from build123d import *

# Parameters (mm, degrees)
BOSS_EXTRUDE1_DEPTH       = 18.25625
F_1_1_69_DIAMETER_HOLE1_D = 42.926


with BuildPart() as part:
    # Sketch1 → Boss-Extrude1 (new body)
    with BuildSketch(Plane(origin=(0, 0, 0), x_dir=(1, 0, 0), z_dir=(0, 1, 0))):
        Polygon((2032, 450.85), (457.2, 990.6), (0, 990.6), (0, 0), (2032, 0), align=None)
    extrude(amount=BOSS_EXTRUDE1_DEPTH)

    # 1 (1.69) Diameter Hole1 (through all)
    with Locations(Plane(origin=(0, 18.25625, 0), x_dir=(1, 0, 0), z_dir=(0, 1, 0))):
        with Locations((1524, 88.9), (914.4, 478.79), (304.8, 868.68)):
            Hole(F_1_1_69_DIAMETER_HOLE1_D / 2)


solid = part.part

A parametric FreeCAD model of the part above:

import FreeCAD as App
import Part
import Sketcher
from FreeCAD import Vector
Q = App.Units.Quantity


def add_polygon(sketch, points):
    """Adds a closed chain of lines whose ends are joined by coincident constraints."""
    first, n = sketch.GeometryCount, len(points)
    for a, b in zip(points, points[1:] + points[:1]):
        sketch.addGeometry(Part.LineSegment(App.Vector(*a, 0), App.Vector(*b, 0)), False)
    for i in range(n):
        sketch.addConstraint(Sketcher.Constraint("Coincident", first + i, 2, first + (i + 1) % n, 1))

doc = App.newDocument("Part")
body = doc.addObject("PartDesign::Body", "Body")

# Sketch on XZ plane
sketch1 = body.newObject("Sketcher::SketchObject", "Sketch")
sketch1.AttachmentSupport = (doc.getObject("XZ_Plane"), [""])
sketch1.MapMode = "FlatFace"
add_polygon(sketch1, [(2032, -451), (457, -991), (0, -991), (0, 0), (2032, 0)])  # lines 0-4
sketch1.addConstraint([
    Sketcher.Constraint("Horizontal", 1),
    Sketcher.Constraint("Vertical", 2),
    Sketcher.Constraint("Horizontal", 3),
    Sketcher.Constraint("Vertical", 4),
    Sketcher.Constraint("Coincident", 2, 2, -1, 1),
    Sketcher.Constraint("DistanceX", 1, 2, 1, 1, Q("18 in")),
    Sketcher.Constraint("DistanceX", 3, 1, 3, 2, Q("80 in")),
    Sketcher.Constraint("DistanceY", 2, 1, 2, 2, Q("39 in")),
    Sketcher.Constraint("DistanceY", 4, 2, 4, 1, Q("17.75 in")),
])
pad1 = body.newObject("PartDesign::Pad", "Pad")
pad1.Profile = sketch1
pad1.Length = Q("0.71875 in")
pad1.Reversed = True

# Sketch on XZ plane
sketch2 = body.newObject("Sketcher::SketchObject", "Sketch001")
sketch2.AttachmentSupport = (doc.getObject("XZ_Plane"), [""])
sketch2.MapMode = "FlatFace"
sketch2.AttachmentOffset = App.Placement(Vector(0, 0, -0.71875 * 25.4), App.Rotation())
sketch2.addGeometry([
    Part.Circle(Vector(1524, -89, 0), Vector(0, 0, 1), 21),
    Part.Circle(Vector(914, -479, 0), Vector(0, 0, 1), 21),
    Part.Circle(Vector(305, -869, 0), Vector(0, 0, 1), 21),
], False)
sketch2.addConstraint([
    Sketcher.Constraint("Equal", 0, 1),
    Sketcher.Constraint("Equal", 1, 2),
    Sketcher.Constraint("Diameter", 0, Q("1.69 in")),
    Sketcher.Constraint("DistanceX", -1, 1, 0, 3, Q("60 in")),
    Sketcher.Constraint("DistanceX", -1, 1, 1, 3, Q("36 in")),
    Sketcher.Constraint("DistanceX", -1, 1, 2, 3, Q("12 in")),
    Sketcher.Constraint("DistanceY", 0, 3, -1, 1, Q("3.5 in")),
    Sketcher.Constraint("DistanceY", 2, 3, -1, 1, Q("34.2 in")),
    Sketcher.Constraint("DistanceY", 1, 3, -1, 1, Q("18.85 in")),
])
doc.recompute()
hole = body.newObject("PartDesign::Hole", "Hole")
hole.Profile = sketch2
hole.ThreadType = "None"
hole.Diameter = Q("1.69 in")
hole.DepthType = "ThroughAll"
hole.Reversed = True

doc.recompute()
